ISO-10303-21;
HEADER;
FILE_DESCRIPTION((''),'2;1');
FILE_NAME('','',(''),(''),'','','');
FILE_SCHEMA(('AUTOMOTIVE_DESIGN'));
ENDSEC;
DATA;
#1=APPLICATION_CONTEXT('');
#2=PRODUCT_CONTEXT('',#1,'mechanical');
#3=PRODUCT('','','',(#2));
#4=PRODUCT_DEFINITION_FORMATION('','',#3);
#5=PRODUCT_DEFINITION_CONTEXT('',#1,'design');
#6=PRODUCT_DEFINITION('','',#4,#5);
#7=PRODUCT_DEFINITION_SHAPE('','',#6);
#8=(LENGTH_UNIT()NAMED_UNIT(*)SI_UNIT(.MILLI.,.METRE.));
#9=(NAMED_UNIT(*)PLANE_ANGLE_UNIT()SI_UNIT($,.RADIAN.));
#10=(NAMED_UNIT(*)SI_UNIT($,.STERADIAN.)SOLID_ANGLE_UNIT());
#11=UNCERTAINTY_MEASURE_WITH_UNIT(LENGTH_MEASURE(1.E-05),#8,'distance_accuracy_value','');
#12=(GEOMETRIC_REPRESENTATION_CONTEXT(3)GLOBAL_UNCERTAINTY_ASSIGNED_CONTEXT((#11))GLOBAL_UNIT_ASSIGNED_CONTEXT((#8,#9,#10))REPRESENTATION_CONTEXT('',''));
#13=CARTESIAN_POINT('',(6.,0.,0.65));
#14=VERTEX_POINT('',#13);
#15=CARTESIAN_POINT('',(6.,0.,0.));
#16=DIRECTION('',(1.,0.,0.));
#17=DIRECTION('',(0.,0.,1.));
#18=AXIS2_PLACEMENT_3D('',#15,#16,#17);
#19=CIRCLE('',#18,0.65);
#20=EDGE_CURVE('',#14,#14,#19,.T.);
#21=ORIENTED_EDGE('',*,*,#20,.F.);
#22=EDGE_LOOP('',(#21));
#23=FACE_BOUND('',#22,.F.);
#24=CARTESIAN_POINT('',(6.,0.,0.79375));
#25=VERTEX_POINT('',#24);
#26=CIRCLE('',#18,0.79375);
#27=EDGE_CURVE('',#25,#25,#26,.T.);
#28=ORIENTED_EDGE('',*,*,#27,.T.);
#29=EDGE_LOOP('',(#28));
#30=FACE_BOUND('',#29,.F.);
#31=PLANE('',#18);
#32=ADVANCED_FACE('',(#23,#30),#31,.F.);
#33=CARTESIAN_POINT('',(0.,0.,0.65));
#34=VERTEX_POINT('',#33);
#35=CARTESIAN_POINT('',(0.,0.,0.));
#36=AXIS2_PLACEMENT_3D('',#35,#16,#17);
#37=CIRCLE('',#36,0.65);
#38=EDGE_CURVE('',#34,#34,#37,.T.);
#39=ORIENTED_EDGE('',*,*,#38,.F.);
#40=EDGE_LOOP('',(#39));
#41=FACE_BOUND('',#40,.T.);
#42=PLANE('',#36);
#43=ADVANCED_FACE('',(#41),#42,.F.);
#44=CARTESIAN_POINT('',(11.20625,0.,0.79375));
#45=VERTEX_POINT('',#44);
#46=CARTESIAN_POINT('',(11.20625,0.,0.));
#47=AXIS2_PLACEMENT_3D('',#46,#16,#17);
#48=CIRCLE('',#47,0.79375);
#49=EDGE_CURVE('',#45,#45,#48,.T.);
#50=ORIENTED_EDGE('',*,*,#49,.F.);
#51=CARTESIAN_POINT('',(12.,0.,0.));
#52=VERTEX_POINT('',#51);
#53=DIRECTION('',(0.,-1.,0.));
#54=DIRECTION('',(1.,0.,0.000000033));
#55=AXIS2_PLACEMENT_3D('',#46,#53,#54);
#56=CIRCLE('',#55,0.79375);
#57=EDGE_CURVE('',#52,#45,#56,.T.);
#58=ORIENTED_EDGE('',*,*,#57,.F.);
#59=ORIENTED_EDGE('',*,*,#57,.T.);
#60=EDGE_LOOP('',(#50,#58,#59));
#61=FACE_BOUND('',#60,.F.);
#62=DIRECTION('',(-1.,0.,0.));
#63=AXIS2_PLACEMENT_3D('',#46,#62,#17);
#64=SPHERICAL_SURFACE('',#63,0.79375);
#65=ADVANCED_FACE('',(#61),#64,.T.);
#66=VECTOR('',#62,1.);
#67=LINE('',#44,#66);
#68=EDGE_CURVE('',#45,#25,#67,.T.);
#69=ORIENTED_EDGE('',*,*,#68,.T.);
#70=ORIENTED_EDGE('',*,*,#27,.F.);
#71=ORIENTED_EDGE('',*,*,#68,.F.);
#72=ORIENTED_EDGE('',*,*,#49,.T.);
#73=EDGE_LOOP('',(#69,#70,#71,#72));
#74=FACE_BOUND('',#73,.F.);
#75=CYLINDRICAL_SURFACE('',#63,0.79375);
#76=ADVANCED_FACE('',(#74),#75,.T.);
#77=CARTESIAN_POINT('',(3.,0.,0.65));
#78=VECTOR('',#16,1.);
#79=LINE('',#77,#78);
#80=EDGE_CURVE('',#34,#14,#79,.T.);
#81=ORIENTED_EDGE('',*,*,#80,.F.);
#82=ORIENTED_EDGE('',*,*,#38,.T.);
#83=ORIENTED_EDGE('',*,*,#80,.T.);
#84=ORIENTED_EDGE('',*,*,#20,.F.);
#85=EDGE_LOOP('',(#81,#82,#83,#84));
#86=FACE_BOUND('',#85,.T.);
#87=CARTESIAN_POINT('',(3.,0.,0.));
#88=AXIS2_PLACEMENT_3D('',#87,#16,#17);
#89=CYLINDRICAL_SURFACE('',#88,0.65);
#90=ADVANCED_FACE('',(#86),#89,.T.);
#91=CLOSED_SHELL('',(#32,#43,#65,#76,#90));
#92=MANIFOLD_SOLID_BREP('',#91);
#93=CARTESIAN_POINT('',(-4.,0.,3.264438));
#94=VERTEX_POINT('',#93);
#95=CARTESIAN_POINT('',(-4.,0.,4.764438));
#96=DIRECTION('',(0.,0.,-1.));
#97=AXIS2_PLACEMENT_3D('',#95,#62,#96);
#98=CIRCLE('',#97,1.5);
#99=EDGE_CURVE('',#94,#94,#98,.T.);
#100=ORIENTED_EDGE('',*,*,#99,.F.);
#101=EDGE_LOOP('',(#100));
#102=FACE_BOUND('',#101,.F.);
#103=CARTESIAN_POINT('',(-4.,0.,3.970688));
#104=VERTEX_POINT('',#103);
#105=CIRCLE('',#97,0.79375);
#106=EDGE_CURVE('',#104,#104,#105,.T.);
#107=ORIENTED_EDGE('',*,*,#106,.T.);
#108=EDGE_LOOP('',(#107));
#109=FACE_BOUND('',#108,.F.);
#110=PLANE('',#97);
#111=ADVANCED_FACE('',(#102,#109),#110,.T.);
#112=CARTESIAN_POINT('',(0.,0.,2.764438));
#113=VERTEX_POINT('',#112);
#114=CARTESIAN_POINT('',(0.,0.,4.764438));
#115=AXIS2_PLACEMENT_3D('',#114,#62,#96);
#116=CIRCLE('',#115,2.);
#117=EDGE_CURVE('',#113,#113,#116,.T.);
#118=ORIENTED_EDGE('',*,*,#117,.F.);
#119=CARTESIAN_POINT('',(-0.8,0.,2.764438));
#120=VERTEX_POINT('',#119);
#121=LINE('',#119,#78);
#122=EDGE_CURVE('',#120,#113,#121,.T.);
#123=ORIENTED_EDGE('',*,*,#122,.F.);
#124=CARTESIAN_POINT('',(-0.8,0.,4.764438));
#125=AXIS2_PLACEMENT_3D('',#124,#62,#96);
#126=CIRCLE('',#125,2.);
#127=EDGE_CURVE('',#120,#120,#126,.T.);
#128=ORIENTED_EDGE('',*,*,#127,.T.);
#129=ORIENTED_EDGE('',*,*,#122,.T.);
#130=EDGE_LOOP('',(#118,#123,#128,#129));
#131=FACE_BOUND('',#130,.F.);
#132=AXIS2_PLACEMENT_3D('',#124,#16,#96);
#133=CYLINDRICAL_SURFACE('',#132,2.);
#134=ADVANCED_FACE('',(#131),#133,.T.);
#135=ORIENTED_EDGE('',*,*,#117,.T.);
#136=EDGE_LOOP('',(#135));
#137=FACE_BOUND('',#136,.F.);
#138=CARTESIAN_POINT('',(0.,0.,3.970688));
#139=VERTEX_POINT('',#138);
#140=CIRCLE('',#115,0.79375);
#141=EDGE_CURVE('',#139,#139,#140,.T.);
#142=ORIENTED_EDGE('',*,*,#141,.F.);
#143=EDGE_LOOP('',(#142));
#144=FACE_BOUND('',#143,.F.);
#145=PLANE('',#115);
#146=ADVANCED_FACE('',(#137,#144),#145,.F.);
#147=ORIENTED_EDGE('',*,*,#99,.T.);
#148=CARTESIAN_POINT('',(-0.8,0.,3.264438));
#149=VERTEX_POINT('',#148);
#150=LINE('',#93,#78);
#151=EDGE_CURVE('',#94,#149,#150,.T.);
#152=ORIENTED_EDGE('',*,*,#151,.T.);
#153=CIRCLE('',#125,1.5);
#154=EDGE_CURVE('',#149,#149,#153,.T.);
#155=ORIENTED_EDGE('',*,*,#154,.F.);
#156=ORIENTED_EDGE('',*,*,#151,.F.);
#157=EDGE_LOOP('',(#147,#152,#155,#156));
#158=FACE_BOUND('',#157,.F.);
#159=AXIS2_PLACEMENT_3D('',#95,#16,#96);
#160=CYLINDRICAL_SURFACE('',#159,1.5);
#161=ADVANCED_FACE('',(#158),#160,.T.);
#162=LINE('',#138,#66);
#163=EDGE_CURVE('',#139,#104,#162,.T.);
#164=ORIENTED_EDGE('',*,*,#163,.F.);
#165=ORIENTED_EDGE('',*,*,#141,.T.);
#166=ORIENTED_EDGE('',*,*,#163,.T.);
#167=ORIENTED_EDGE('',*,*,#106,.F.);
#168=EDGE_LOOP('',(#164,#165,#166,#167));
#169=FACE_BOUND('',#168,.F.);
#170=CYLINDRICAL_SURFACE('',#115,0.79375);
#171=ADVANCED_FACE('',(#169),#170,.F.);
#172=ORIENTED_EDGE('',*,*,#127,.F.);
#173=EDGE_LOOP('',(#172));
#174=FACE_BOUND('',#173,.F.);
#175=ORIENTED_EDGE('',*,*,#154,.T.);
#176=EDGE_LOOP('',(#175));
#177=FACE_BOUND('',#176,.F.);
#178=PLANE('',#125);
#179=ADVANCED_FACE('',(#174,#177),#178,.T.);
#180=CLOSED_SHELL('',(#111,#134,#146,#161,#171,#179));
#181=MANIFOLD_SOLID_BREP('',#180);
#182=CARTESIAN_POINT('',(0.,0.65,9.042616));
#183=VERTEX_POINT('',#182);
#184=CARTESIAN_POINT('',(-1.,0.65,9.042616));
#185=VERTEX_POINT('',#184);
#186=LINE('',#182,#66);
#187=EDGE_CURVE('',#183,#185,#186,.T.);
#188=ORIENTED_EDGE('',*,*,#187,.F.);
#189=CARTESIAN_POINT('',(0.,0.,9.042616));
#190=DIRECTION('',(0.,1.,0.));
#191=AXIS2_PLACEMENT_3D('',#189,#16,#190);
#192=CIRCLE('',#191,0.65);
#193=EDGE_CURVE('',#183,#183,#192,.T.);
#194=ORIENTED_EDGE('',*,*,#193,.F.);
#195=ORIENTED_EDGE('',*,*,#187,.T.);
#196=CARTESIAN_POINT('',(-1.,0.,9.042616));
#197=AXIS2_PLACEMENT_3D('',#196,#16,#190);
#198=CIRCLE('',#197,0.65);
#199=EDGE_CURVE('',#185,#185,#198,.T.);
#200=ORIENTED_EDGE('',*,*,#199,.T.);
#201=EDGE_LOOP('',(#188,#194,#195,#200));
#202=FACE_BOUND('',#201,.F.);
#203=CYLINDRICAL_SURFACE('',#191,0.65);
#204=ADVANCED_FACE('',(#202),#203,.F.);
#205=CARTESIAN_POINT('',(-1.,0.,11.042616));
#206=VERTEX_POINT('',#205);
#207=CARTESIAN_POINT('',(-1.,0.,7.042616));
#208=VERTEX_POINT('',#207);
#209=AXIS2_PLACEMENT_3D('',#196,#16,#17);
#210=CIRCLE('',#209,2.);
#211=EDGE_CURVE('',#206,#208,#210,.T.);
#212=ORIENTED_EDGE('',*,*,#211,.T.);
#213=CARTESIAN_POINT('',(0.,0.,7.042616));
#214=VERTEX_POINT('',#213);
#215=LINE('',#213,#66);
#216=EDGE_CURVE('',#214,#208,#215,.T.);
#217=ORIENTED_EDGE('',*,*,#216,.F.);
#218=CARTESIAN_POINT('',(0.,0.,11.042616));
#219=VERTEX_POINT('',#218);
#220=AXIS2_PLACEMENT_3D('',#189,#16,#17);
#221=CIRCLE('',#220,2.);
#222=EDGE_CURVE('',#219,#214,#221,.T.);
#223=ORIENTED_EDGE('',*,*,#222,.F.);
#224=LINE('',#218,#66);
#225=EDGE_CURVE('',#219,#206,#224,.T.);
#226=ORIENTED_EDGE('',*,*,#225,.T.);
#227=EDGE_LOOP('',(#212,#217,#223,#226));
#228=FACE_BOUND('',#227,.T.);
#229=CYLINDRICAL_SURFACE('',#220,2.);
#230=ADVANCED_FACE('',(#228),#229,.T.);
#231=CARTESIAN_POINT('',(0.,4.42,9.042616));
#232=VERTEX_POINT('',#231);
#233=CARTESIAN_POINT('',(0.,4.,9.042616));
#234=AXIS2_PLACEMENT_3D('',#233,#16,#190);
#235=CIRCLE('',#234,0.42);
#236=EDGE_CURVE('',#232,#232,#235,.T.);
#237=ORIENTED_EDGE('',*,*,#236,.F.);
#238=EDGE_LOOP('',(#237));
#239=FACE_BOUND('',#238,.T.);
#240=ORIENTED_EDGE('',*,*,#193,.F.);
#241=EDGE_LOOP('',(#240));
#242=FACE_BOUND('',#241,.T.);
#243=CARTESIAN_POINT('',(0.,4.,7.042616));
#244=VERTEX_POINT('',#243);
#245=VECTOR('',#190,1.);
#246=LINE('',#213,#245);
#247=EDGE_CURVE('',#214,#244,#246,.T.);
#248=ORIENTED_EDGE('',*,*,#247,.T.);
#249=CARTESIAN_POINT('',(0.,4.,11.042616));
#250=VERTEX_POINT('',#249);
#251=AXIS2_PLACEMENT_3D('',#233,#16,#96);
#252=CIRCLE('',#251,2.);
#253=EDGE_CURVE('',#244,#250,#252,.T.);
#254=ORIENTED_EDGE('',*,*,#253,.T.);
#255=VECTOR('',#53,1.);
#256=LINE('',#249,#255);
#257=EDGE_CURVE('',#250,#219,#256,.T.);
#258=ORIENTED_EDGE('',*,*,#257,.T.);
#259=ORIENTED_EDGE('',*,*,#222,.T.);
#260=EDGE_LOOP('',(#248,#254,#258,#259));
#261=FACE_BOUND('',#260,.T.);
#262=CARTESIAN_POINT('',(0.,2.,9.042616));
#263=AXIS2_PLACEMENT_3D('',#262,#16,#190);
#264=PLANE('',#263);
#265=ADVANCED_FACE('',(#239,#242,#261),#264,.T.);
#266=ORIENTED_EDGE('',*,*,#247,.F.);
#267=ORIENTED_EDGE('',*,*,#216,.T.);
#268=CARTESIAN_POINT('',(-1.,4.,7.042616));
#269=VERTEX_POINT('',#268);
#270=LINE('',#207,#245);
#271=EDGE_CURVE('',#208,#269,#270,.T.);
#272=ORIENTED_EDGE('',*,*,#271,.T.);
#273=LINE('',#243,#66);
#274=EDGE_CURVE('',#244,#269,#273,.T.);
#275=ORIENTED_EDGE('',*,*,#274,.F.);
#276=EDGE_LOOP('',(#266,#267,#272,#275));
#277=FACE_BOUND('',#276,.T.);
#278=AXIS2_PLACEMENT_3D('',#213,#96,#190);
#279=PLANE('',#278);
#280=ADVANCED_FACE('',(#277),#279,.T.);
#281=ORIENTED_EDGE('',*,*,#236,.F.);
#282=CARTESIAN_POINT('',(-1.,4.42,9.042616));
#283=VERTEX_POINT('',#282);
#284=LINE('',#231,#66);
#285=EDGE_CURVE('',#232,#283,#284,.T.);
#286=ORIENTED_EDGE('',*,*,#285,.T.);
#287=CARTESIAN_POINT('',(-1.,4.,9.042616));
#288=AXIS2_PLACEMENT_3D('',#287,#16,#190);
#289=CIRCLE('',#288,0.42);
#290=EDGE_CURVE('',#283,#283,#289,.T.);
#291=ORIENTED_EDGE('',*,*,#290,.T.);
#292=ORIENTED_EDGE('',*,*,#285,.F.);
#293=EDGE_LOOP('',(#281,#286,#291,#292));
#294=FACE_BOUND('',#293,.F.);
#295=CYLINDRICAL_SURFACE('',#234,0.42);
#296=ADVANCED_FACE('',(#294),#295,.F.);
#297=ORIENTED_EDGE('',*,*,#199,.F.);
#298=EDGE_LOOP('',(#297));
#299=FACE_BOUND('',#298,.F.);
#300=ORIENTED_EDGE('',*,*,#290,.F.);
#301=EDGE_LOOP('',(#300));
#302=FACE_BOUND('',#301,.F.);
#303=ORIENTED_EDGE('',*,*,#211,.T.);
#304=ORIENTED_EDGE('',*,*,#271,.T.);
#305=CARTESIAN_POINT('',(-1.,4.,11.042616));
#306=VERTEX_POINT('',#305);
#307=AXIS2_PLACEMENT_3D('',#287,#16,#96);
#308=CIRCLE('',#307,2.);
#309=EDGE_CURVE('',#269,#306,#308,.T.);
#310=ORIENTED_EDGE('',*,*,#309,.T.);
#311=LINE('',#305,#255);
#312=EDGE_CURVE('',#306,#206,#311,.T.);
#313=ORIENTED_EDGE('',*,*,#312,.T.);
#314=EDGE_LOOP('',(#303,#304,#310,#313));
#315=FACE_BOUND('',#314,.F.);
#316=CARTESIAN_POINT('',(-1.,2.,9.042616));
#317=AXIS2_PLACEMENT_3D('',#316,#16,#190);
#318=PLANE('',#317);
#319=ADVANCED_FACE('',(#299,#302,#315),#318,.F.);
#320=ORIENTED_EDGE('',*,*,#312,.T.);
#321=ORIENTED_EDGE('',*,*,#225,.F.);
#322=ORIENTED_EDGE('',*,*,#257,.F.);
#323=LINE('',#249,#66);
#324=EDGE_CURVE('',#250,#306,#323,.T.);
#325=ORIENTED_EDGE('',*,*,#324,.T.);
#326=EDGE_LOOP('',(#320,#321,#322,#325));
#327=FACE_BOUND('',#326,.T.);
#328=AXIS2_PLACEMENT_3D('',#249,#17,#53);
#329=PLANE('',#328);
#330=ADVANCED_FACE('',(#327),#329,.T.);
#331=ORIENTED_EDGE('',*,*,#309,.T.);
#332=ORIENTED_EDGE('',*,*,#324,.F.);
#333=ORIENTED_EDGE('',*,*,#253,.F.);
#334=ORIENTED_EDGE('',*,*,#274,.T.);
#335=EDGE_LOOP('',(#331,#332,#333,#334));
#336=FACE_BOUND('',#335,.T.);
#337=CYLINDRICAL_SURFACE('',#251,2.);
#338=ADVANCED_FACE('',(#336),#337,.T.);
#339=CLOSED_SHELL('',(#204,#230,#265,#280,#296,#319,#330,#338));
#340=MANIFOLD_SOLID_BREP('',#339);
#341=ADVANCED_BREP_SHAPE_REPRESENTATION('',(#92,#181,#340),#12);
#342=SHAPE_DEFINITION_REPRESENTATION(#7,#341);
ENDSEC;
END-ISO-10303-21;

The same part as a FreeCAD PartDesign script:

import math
import FreeCAD as App
import Part
import Sketcher
from FreeCAD import Vector


def add_polygon(sketch, points):
    """Adds a closed chain of lines whose ends are joined by coincident constraints."""
    first, n = sketch.GeometryCount, len(points)
    for a, b in zip(points, points[1:] + points[:1]):
        sketch.addGeometry(Part.LineSegment(App.Vector(*a, 0), App.Vector(*b, 0)), False)
    for i in range(n):
        sketch.addConstraint(Sketcher.Constraint("Coincident", first + i, 2, first + (i + 1) % n, 1))

doc = App.newDocument("Part")
params = doc.addObject("Spreadsheet::Sheet", "Params")
for row, (alias, value) in enumerate([
    ("sketch1_width", "12 mm"),
    ("sketch1_width2", "6 mm"),
    ("sketch1_height", "0.65 mm"),
    ("revolution_angle", "360 deg"),
    ("sketch2_width", "4 mm"),
    ("sketch2_width2", "0.8 mm"),
    ("sketch2_height", "0.5 mm"),
    ("revolution2_angle", "360 deg"),
    ("sketch3_radius", "2 mm"),
    ("sketch3_diameter", "1.3 mm"),
    ("sketch3_diameter2", "0.84 mm"),
    ("sketch3_width", "4 mm"),
    ("pad1_length", "1 mm"),
], start=1):
    params.set(f"A{row}", alias)
    params.set(f"B{row}", "=" + value)
    params.setAlias(f"B{row}", alias)

body = doc.addObject("PartDesign::Body", "Body")

sketch1 = body.newObject("Sketcher::SketchObject", "Sketch")
sketch1.AttachmentSupport = (doc.getObject("XZ_Plane"), [""])
sketch1.MapMode = "FlatFace"
sketch1.addGeometry(Part.LineSegment(Vector(0, 0.65, 0), Vector(0, 0, 0)), False)
sketch1.addGeometry(Part.LineSegment(Vector(0, 0, 0), Vector(12, 0, 0)), False)
sketch1.addGeometry(Part.ArcOfCircle(Part.Circle(Vector(11.21, 0, 0), Vector(0, 0, 1), 0.79), math.radians(0), math.radians(90)), False)
sketch1.addGeometry(Part.LineSegment(Vector(11.21, 0.79, 0), Vector(6, 0.79, 0)), False)
sketch1.addGeometry(Part.LineSegment(Vector(6, 0.79, 0), Vector(6, 0.65, 0)), False)
sketch1.addGeometry(Part.LineSegment(Vector(6, 0.65, 0), Vector(0, 0.65, 0)), False)
sketch1.addConstraint(Sketcher.Constraint("Coincident", 0, 2, 1, 1))
sketch1.addConstraint(Sketcher.Constraint("Coincident", 1, 2, 2, 1))
sketch1.addConstraint(Sketcher.Constraint("Tangent", 2, 2, 3, 1))
sketch1.addConstraint(Sketcher.Constraint("Coincident", 3, 2, 4, 1))
sketch1.addConstraint(Sketcher.Constraint("Coincident", 4, 2, 5, 1))
sketch1.addConstraint(Sketcher.Constraint("Coincident", 5, 2, 0, 1))
sketch1.addConstraint(Sketcher.Constraint("Vertical", 0))
sketch1.addConstraint(Sketcher.Constraint("Horizontal", 1))
sketch1.addConstraint(Sketcher.Constraint("Horizontal", 3))
sketch1.addConstraint(Sketcher.Constraint("Vertical", 4))
sketch1.addConstraint(Sketcher.Constraint("Horizontal", 5))
sketch1.addConstraint(Sketcher.Constraint("Coincident", 0, 2, -1, 1))
sketch1.addConstraint(Sketcher.Constraint("PointOnObject", 2, 3, -1))
sketch1.addConstraint(Sketcher.Constraint("DistanceX", 1, 1, 1, 2, 12.0))
sketch1.addConstraint(Sketcher.Constraint("DistanceX", 5, 2, 5, 1, 6.0))
sketch1.addConstraint(Sketcher.Constraint("DistanceY", 0, 2, 0, 1, 0.65))
sketch1.addConstraint(Sketcher.Constraint("Radius", 2, 0.79375))
sketch1.setExpression("Constraints[13]", "Params.sketch1_width")
sketch1.setExpression("Constraints[14]", "Params.sketch1_width2")
sketch1.setExpression("Constraints[15]", "Params.sketch1_height")
revolution = body.newObject("PartDesign::Revolution", "Revolution")
revolution.Profile = sketch1
revolution.ReferenceAxis = (sketch1, ["H_Axis"])
revolution.setExpression("Angle", "Params.revolution_angle")
body2 = doc.addObject("PartDesign::Body", "Body001")

sketch2 = body2.newObject("Sketcher::SketchObject", "Sketch001")
sketch2.AttachmentSupport = (doc.getObject("XZ_Plane001"), [""])
sketch2.MapMode = "FlatFace"
add_polygon(sketch2, [(-0.8, 2.8), (0, 2.8), (0, 4), (-4, 4), (-4, 3.3), (-0.8, 3.3)])
sketch2.addGeometry(Part.LineSegment(Vector(0, 4.8, 0), Vector(-4, 4.8, 0)), True)
sketch2.addConstraint(Sketcher.Constraint("Horizontal", 0))
sketch2.addConstraint(Sketcher.Constraint("Vertical", 1))
sketch2.addConstraint(Sketcher.Constraint("Horizontal", 2))
sketch2.addConstraint(Sketcher.Constraint("Vertical", 3))
sketch2.addConstraint(Sketcher.Constraint("Horizontal", 4))
sketch2.addConstraint(Sketcher.Constraint("Vertical", 5))
sketch2.addConstraint(Sketcher.Constraint("Horizontal", 6))
sketch2.addConstraint(Sketcher.Constraint("PointOnObject", 0, 2, -2))
sketch2.addConstraint(Sketcher.Constraint("PointOnObject", 6, 1, -2))
sketch2.addConstraint(Sketcher.Constraint("Vertical", 3, 2, 6, 2))
sketch2.addConstraint(Sketcher.Constraint("DistanceX", 2, 2, 2, 1, 4.0))
sketch2.addConstraint(Sketcher.Constraint("DistanceX", 0, 1, 0, 2, 0.8))
sketch2.addConstraint(Sketcher.Constraint("DistanceY", 5, 2, 5, 1, 0.5))
sketch2.addConstraint(Sketcher.Constraint("DistanceY", 0, 2, 6, 1, 2.0))
sketch2.addConstraint(Sketcher.Constraint("DistanceY", 1, 1, 1, 2, 1.20625))
sketch2.addConstraint(Sketcher.Constraint("DistanceY", -1, 1, 0, 2, 2.764438))
sketch2.setExpression("Constraints[16]", "Params.sketch2_width")
sketch2.setExpression("Constraints[17]", "Params.sketch2_width2")
sketch2.setExpression("Constraints[18]", "Params.sketch2_height")
revolution2 = body2.newObject("PartDesign::Revolution", "Revolution001")
revolution2.Profile = sketch2
revolution2.ReferenceAxis = (sketch2, ["Axis0"])
revolution2.setExpression("Angle", "Params.revolution2_angle")
body3 = doc.addObject("PartDesign::Body", "Body002")

sketch3 = body3.newObject("Sketcher::SketchObject", "Sketch002")
sketch3.AttachmentSupport = (doc.getObject("YZ_Plane002"), [""])
sketch3.MapMode = "FlatFace"
sketch3.addGeometry(Part.LineSegment(Vector(4, 11.04, 0), Vector(0, 11.04, 0)), False)
sketch3.addGeometry(Part.ArcOfCircle(Part.Circle(Vector(0, 9.04, 0), Vector(0, 0, 1), 2), math.radians(90), math.radians(270)), False)
sketch3.addGeometry(Part.LineSegment(Vector(0, 7.04, 0), Vector(4, 7.04, 0)), False)
sketch3.addGeometry(Part.ArcOfCircle(Part.Circle(Vector(4, 9.04, 0), Vector(0, 0, 1), 2), math.radians(-90), math.radians(90)), False)
sketch3.addGeometry(Part.Circle(Vector(0, 9.04, 0), Vector(0, 0, 1), 0.65), False)
sketch3.addGeometry(Part.Circle(Vector(4, 9.04, 0), Vector(0, 0, 1), 0.42), False)
sketch3.addConstraint(Sketcher.Constraint("Tangent", 0, 2, 1, 1))
sketch3.addConstraint(Sketcher.Constraint("Tangent", 1, 2, 2, 1))
sketch3.addConstraint(Sketcher.Constraint("Tangent", 2, 2, 3, 1))
sketch3.addConstraint(Sketcher.Constraint("Tangent", 3, 2, 0, 1))
sketch3.addConstraint(Sketcher.Constraint("Horizontal", 0))
sketch3.addConstraint(Sketcher.Constraint("Horizontal", 2))
sketch3.addConstraint(Sketcher.Constraint("Coincident", 4, 3, 1, 3))
sketch3.addConstraint(Sketcher.Constraint("Coincident", 5, 3, 3, 3))
sketch3.addConstraint(Sketcher.Constraint("PointOnObject", 1, 3, -2))
sketch3.addConstraint(Sketcher.Constraint("Radius", 1, 2.0))
sketch3.addConstraint(Sketcher.Constraint("Diameter", 4, 1.3))
sketch3.addConstraint(Sketcher.Constraint("Diameter", 5, 0.84))
sketch3.addConstraint(Sketcher.Constraint("DistanceX", 0, 2, 0, 1, 4.0))
sketch3.addConstraint(Sketcher.Constraint("DistanceY", -1, 1, 1, 3, 9.042616))
sketch3.setExpression("Constraints[9]", "Params.sketch3_radius")
sketch3.setExpression("Constraints[10]", "Params.sketch3_diameter")
sketch3.setExpression("Constraints[11]", "Params.sketch3_diameter2")
sketch3.setExpression("Constraints[12]", "Params.sketch3_width")
pad1 = body3.newObject("PartDesign::Pad", "Pad")
pad1.Profile = sketch3
pad1.setExpression("Length", "Params.pad1_length")
pad1.Reversed = True

doc.recompute()
